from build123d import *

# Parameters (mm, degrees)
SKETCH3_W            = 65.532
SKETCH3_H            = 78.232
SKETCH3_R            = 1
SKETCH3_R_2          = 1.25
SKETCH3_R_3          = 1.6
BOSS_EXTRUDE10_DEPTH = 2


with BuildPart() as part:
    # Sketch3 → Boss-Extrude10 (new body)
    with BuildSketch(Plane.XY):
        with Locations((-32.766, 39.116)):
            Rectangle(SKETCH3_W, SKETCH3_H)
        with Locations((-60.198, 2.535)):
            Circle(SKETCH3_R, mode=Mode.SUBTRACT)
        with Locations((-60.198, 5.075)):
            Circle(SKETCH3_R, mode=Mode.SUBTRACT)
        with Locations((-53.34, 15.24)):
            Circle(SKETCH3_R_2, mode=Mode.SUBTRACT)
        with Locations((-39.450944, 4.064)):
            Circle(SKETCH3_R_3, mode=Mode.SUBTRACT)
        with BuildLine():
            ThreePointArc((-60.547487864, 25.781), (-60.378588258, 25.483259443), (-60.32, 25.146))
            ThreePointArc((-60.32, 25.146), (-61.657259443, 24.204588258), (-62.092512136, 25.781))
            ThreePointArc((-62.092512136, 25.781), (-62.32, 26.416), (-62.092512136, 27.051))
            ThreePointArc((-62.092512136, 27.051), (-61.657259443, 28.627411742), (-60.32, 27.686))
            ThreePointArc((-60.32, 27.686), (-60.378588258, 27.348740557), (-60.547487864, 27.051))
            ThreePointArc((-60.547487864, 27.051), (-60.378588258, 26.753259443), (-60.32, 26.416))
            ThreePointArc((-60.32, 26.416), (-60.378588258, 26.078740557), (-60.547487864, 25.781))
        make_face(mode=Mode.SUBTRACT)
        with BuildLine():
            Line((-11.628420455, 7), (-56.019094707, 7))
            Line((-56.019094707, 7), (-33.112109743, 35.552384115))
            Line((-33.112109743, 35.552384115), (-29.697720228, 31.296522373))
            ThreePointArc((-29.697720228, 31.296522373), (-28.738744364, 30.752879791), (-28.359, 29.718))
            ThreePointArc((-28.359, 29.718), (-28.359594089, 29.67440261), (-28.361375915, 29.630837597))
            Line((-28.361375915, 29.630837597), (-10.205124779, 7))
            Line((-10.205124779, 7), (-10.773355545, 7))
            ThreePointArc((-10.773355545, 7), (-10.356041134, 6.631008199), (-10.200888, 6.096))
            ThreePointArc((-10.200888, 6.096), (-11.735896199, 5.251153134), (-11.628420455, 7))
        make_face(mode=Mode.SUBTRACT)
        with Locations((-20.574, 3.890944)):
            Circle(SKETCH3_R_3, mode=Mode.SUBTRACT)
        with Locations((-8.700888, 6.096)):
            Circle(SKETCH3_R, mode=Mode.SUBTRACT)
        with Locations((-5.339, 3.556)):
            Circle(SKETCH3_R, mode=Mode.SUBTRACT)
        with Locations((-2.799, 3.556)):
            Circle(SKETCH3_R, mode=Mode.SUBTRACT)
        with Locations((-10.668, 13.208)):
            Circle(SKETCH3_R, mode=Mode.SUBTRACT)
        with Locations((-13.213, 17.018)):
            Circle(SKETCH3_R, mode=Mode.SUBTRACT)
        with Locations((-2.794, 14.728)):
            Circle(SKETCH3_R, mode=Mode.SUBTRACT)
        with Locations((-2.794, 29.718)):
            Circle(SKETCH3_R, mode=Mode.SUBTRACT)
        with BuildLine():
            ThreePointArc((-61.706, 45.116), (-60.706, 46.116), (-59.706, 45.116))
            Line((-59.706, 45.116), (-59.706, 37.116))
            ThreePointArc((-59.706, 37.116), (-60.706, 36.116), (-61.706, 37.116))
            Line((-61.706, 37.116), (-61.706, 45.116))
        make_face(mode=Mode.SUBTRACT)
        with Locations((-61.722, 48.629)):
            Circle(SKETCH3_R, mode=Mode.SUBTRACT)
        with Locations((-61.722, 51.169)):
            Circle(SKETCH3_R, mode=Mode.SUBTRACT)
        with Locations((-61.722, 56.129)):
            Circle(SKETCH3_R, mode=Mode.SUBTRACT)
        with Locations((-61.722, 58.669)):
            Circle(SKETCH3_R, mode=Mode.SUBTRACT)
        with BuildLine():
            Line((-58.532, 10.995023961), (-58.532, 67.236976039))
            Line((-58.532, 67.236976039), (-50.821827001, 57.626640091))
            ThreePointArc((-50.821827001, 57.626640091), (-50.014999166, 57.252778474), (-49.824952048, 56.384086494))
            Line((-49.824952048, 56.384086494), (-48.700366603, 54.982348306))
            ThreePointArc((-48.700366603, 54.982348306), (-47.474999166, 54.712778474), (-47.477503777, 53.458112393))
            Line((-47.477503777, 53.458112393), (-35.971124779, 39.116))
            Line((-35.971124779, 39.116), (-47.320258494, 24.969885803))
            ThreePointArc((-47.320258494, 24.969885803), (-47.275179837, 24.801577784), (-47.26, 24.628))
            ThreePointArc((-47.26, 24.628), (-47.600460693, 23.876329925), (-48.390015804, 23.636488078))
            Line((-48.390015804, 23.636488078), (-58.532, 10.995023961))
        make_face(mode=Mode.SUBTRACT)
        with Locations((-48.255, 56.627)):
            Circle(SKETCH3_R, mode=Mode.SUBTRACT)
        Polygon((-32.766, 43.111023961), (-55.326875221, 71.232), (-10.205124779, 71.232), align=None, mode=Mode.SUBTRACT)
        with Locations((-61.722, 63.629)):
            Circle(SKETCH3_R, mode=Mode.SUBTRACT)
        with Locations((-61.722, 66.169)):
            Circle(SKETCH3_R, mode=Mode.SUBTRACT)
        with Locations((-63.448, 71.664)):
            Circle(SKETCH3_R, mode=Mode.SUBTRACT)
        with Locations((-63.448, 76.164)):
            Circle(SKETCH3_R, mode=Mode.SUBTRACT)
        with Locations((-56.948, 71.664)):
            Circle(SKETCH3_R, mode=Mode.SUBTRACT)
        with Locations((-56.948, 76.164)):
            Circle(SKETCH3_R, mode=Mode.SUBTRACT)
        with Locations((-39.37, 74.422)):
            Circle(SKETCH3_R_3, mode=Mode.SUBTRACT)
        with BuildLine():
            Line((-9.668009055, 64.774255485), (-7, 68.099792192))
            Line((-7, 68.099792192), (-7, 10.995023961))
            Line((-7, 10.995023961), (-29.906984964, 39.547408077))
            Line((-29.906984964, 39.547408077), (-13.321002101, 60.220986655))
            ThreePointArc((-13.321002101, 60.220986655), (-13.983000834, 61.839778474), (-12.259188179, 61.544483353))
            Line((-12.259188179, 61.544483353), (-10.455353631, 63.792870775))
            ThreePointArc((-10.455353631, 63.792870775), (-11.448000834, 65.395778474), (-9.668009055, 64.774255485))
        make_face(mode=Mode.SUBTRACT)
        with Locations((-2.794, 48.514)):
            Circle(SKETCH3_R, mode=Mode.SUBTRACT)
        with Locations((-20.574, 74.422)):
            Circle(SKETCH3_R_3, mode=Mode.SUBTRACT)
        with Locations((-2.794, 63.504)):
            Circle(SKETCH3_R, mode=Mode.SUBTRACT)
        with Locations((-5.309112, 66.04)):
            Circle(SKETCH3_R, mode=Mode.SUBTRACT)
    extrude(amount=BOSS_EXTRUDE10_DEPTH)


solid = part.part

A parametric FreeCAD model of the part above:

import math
import FreeCAD as App
import Part
import Sketcher

V = App.Vector

doc = App.newDocument("Part")
body = doc.addObject("PartDesign::Body", "Body")

# Sketch on XY plane
sketch1 = doc.addObject("Sketcher::SketchObject", "Sketch")
body.addObject(sketch1)
sketch1.AttachmentSupport = (doc.XY_Plane, [""])
sketch1.MapMode = "FlatFace"
sketch1.addGeometry([
    Part.LineSegment(V(-65.53, 78.23, 0), V(-65.53, 0, 0)),  # 0
    Part.LineSegment(V(-65.53, 0, 0), V(0, 0, 0)),  # 1
    Part.LineSegment(V(0, 0, 0), V(0, 78.23, 0)),  # 2
    Part.LineSegment(V(0, 78.23, 0), V(-65.53, 78.23, 0)),  # 3
    Part.Circle(V(-60.2, 2.54, 0), V(0, 0, 1), 1),  # 4
    Part.Circle(V(-60.2, 5.08, 0), V(0, 0, 1), 1),  # 5
    Part.Circle(V(-53.34, 15.24, 0), V(0, 0, 1), 1.25),  # 6
    Part.Circle(V(-39.45, 4.06, 0), V(0, 0, 1), 1.6),  # 7
    Part.ArcOfCircle(Part.Circle(V(-61.32, 26.42, 0), V(0, 0, 1), 1), math.radians(-39), math.radians(0)),  # 8
    Part.ArcOfCircle(Part.Circle(V(-61.32, 25.15, 0), V(0, 0, 1), 1), math.radians(0), math.radians(39)),  # 9
    Part.ArcOfCircle(Part.Circle(V(-61.32, 25.15, 0), V(0, 0, 1), 1), math.radians(141), math.radians(360)),  # 10
    Part.ArcOfCircle(Part.Circle(V(-61.32, 26.42, 0), V(0, 0, 1), 1), math.radians(141), math.radians(219)),  # 11
    Part.ArcOfCircle(Part.Circle(V(-61.32, 27.69, 0), V(0, 0, 1), 1), math.radians(0), math.radians(219)),  # 12
    Part.ArcOfCircle(Part.Circle(V(-61.32, 27.69, 0), V(0, 0, 1), 1), math.radians(-39), math.radians(0)),  # 13
    Part.ArcOfCircle(Part.Circle(V(-61.32, 26.42, 0), V(0, 0, 1), 1), math.radians(0), math.radians(39)),  # 14
    Part.LineSegment(V(-48.39, 23.64, 0), V(-58.53, 11, 0)),  # 15
    Part.LineSegment(V(-58.53, 11, 0), V(-58.53, 67.24, 0)),  # 16
    Part.LineSegment(V(-58.53, 67.24, 0), V(-50.82, 57.63, 0)),  # 17
    Part.ArcOfCircle(Part.Circle(V(-50.8, 56.63, 0), V(0, 0, 1), 1), math.radians(-14), math.radians(92)),  # 18
    Part.LineSegment(V(-49.82, 56.38, 0), V(-48.7, 54.98, 0)),  # 19
    Part.ArcOfCircle(Part.Circle(V(-48.26, 54.09, 0), V(0, 0, 1), 1), math.radians(-39), math.radians(116)),  # 20
    Part.LineSegment(V(-47.48, 53.46, 0), V(-35.97, 39.12, 0)),  # 21
    Part.LineSegment(V(-35.97, 39.12, 0), V(-47.32, 24.97, 0)),  # 22
    Part.ArcOfCircle(Part.Circle(V(-48.26, 24.63, 0), V(0, 0, 1), 1), math.radians(0), math.radians(19.99)),  # 23
    Part.ArcOfCircle(Part.Circle(V(-48.26, 24.63, 0), V(0, 0, 1), 1), math.radians(-97), math.radians(0)),  # 24
    Part.Circle(V(-20.57, 3.89, 0), V(0, 0, 1), 1.6),  # 25
    Part.ArcOfCircle(Part.Circle(V(-11.2, 6.1, 0), V(0, 0, 1), 1), math.radians(115), math.radians(360)),  # 26
    Part.LineSegment(V(-11.63, 7, 0), V(-56.02, 7, 0)),  # 27
    Part.LineSegment(V(-56.02, 7, 0), V(-33.11, 35.55, 0)),  # 28
    Part.LineSegment(V(-33.11, 35.55, 0), V(-29.7, 31.3, 0)),  # 29
    Part.ArcOfCircle(Part.Circle(V(-29.96, 29.72, 0), V(0, 0, 1), 1.6), math.radians(0), math.radians(81)),  # 30
    Part.ArcOfCircle(Part.Circle(V(-29.96, 29.72, 0), V(0, 0, 1), 1.6), math.radians(-3.12), math.radians(0)),  # 31
    Part.LineSegment(V(-28.36, 29.63, 0), V(-10.21, 7, 0)),  # 32
    Part.LineSegment(V(-10.21, 7, 0), V(-10.77, 7, 0)),  # 33
    Part.ArcOfCircle(Part.Circle(V(-11.2, 6.1, 0), V(0, 0, 1), 1), math.radians(0), math.radians(65)),  # 34
    Part.Circle(V(-8.7, 6.1, 0), V(0, 0, 1), 1),  # 35
    Part.Circle(V(-5.34, 3.56, 0), V(0, 0, 1), 1),  # 36
    Part.Circle(V(-2.8, 3.56, 0), V(0, 0, 1), 1),  # 37
    Part.Circle(V(-10.67, 13.21, 0), V(0, 0, 1), 1),  # 38
    Part.Circle(V(-13.21, 17.02, 0), V(0, 0, 1), 1),  # 39
    Part.Circle(V(-2.79, 14.73, 0), V(0, 0, 1), 1),  # 40
    Part.Circle(V(-2.79, 29.72, 0), V(0, 0, 1), 1),  # 41
    Part.LineSegment(V(-61.71, 37.12, 0), V(-61.71, 45.12, 0)),  # 42
    Part.ArcOfCircle(Part.Circle(V(-60.71, 45.12, 0), V(0, 0, 1), 1), math.radians(0), math.radians(180)),  # 43
    Part.LineSegment(V(-59.71, 45.12, 0), V(-59.71, 37.12, 0)),  # 44
    Part.ArcOfCircle(Part.Circle(V(-60.71, 37.12, 0), V(0, 0, 1), 1), math.radians(180), math.radians(360)),  # 45
    Part.Circle(V(-61.72, 48.63, 0), V(0, 0, 1), 1),  # 46
    Part.Circle(V(-61.72, 51.17, 0), V(0, 0, 1), 1),  # 47
    Part.Circle(V(-61.72, 56.13, 0), V(0, 0, 1), 1),  # 48
    Part.Circle(V(-48.26, 56.63, 0), V(0, 0, 1), 1),  # 49
    Part.Circle(V(-61.72, 58.67, 0), V(0, 0, 1), 1),  # 50
    Part.Circle(V(-61.72, 63.63, 0), V(0, 0, 1), 1),  # 51
    Part.Circle(V(-61.72, 66.17, 0), V(0, 0, 1), 1),  # 52
    Part.Circle(V(-63.45, 71.66, 0), V(0, 0, 1), 1),  # 53
    Part.Circle(V(-56.95, 71.66, 0), V(0, 0, 1), 1),  # 54
    Part.Circle(V(-63.45, 76.16, 0), V(0, 0, 1), 1),  # 55
    Part.Circle(V(-56.95, 76.16, 0), V(0, 0, 1), 1),  # 56
    Part.Circle(V(-39.37, 74.42, 0), V(0, 0, 1), 1.6),  # 57
    Part.ArcOfCircle(Part.Circle(V(-10.67, 64.77, 0), V(0, 0, 1), 1), math.radians(0), math.radians(282)),  # 58
    Part.LineSegment(V(-9.67, 64.77, 0), V(-7, 68.1, 0)),  # 59
    Part.LineSegment(V(-7, 68.1, 0), V(-7, 11, 0)),  # 60
    Part.LineSegment(V(-7, 11, 0), V(-29.91, 39.55, 0)),  # 61
    Part.LineSegment(V(-29.91, 39.55, 0), V(-13.32, 60.22, 0)),  # 62
    Part.ArcOfCircle(Part.Circle(V(-13.2, 61.21, 0), V(0, 0, 1), 1), math.radians(19), math.radians(263)),  # 63
    Part.LineSegment(V(-12.26, 61.54, 0), V(-10.46, 63.79, 0)),  # 64
    Part.LineSegment(V(-10.21, 71.23, 0), V(-32.77, 43.11, 0)),  # 65
    Part.LineSegment(V(-32.77, 43.11, 0), V(-55.33, 71.23, 0)),  # 66
    Part.LineSegment(V(-55.33, 71.23, 0), V(-10.21, 71.23, 0)),  # 67
    Part.Circle(V(-2.79, 48.51, 0), V(0, 0, 1), 1),  # 68
    Part.Circle(V(-20.57, 74.42, 0), V(0, 0, 1), 1.6),  # 69
    Part.Circle(V(-2.79, 63.5, 0), V(0, 0, 1), 1),  # 70
    Part.Circle(V(-5.31, 66.04, 0), V(0, 0, 1), 1),  # 71
], False)
sketch1.addConstraint([
    Sketcher.Constraint("Coincident", 0, 2, 1, 1),
    Sketcher.Constraint("Coincident", 1, 2, 2, 1),
    Sketcher.Constraint("Coincident", 2, 2, 3, 1),
    Sketcher.Constraint("Coincident", 3, 2, 0, 1),
    Sketcher.Constraint("Coincident", 8, 1, 9, 2),
    Sketcher.Constraint("Tangent", 9, 1, 10, 2),
    Sketcher.Constraint("Coincident", 10, 1, 11, 2),
    Sketcher.Constraint("Coincident", 11, 1, 12, 2),
    Sketcher.Constraint("Tangent", 12, 1, 13, 2),
    Sketcher.Constraint("Coincident", 13, 1, 14, 2),
    Sketcher.Constraint("Tangent", 14, 1, 8, 2),
    Sketcher.Constraint("Coincident", 15, 2, 16, 1),
    Sketcher.Constraint("Coincident", 16, 2, 17, 1),
    Sketcher.Constraint("Coincident", 17, 2, 18, 2),
    Sketcher.Constraint("Coincident", 18, 1, 19, 1),
    Sketcher.Constraint("Coincident", 19, 2, 20, 2),
    Sketcher.Constraint("Coincident", 20, 1, 21, 1),
    Sketcher.Constraint("Coincident", 21, 2, 22, 1),
    Sketcher.Constraint("Coincident", 22, 2, 23, 2),
    Sketcher.Constraint("Tangent", 23, 1, 24, 2),
    Sketcher.Constraint("Coincident", 24, 1, 15, 1),
    Sketcher.Constraint("Coincident", 26, 1, 27, 1),
    Sketcher.Constraint("Coincident", 27, 2, 28, 1),
    Sketcher.Constraint("Coincident", 28, 2, 29, 1),
    Sketcher.Constraint("Coincident", 29, 2, 30, 2),
    Sketcher.Constraint("Tangent", 30, 1, 31, 2),
    Sketcher.Constraint("Coincident", 31, 1, 32, 1),
    Sketcher.Constraint("Coincident", 32, 2, 33, 1),
    Sketcher.Constraint("Coincident", 33, 2, 34, 2),
    Sketcher.Constraint("Tangent", 34, 1, 26, 2),
    Sketcher.Constraint("Tangent", 42, 2, 43, 2),
    Sketcher.Constraint("Tangent", 43, 1, 44, 1),
    Sketcher.Constraint("Tangent", 44, 2, 45, 2),
    Sketcher.Constraint("Tangent", 45, 1, 42, 1),
    Sketcher.Constraint("Coincident", 58, 1, 59, 1),
    Sketcher.Constraint("Coincident", 59, 2, 60, 1),
    Sketcher.Constraint("Coincident", 60, 2, 61, 1),
    Sketcher.Constraint("Coincident", 61, 2, 62, 1),
    Sketcher.Constraint("Coincident", 62, 2, 63, 2),
    Sketcher.Constraint("Coincident", 63, 1, 64, 1),
    Sketcher.Constraint("Coincident", 64, 2, 58, 2),
    Sketcher.Constraint("Coincident", 65, 2, 66, 1),
    Sketcher.Constraint("Coincident", 66, 2, 67, 1),
    Sketcher.Constraint("Coincident", 67, 2, 65, 1),
    Sketcher.Constraint("Vertical", 0),
    Sketcher.Constraint("Horizontal", 1),
    Sketcher.Constraint("Vertical", 2),
    Sketcher.Constraint("Horizontal", 3),
    Sketcher.Constraint("Vertical", 16),
    Sketcher.Constraint("Horizontal", 27),
    Sketcher.Constraint("Horizontal", 33),
    Sketcher.Constraint("Vertical", 42),
    Sketcher.Constraint("Vertical", 44),
    Sketcher.Constraint("Vertical", 60),
    Sketcher.Constraint("Horizontal", 67),
    Sketcher.Constraint("Coincident", 1, 2, -1, 1),
    Sketcher.Constraint("Coincident", 11, 3, 8, 3),
    Sketcher.Constraint("Equal", 4, 5),
    Sketcher.Constraint("Equal", 5, 8),
    Sketcher.Constraint("Equal", 8, 9),
    Sketcher.Constraint("Equal", 9, 10),
    Sketcher.Constraint("Equal", 10, 11),
    Sketcher.Constraint("Equal", 11, 12),
    Sketcher.Constraint("Equal", 12, 13),
    Sketcher.Constraint("Equal", 13, 14),
    Sketcher.Constraint("Equal", 14, 18),
    Sketcher.Constraint("Equal", 18, 20),
    Sketcher.Constraint("Equal", 20, 23),
    Sketcher.Constraint("Equal", 23, 24),
    Sketcher.Constraint("Equal", 7, 25),
    Sketcher.Constraint("Equal", 24, 26),
    Sketcher.Constraint("Equal", 25, 30),
    Sketcher.Constraint("Equal", 30, 31),
    Sketcher.Constraint("Equal", 26, 34),
    Sketcher.Constraint("Equal", 34, 35),
    Sketcher.Constraint("Equal", 35, 36),
    Sketcher.Constraint("Equal", 36, 37),
    Sketcher.Constraint("Equal", 37, 38),
    Sketcher.Constraint("Equal", 38, 39),
    Sketcher.Constraint("Equal", 39, 40),
    Sketcher.Constraint("Equal", 40, 41),
    Sketcher.Constraint("Equal", 41, 43),
    Sketcher.Constraint("Equal", 45, 46),
    Sketcher.Constraint("Equal", 46, 47),
    Sketcher.Constraint("Equal", 47, 48),
    Sketcher.Constraint("Equal", 48, 49),
    Sketcher.Constraint("Equal", 49, 50),
    Sketcher.Constraint("Equal", 50, 51),
    Sketcher.Constraint("Equal", 51, 52),
    Sketcher.Constraint("Equal", 52, 53),
    Sketcher.Constraint("Equal", 53, 54),
    Sketcher.Constraint("Equal", 54, 55),
    Sketcher.Constraint("Equal", 55, 56),
    Sketcher.Constraint("Equal", 31, 57),
    Sketcher.Constraint("Equal", 56, 58),
    Sketcher.Constraint("Equal", 58, 63),
    Sketcher.Constraint("Equal", 63, 68),
    Sketcher.Constraint("Equal", 57, 69),
    Sketcher.Constraint("Equal", 68, 70),
    Sketcher.Constraint("Equal", 70, 71),
    Sketcher.Constraint("Parallel", 17, 19),
    Sketcher.Constraint("Parallel", 19, 21),
    Sketcher.Constraint("Parallel", 15, 22),
    Sketcher.Constraint("Parallel", 22, 28),
    Sketcher.Constraint("Parallel", 21, 29),
    Sketcher.Constraint("Parallel", 29, 32),
    Sketcher.Constraint("Parallel", 28, 59),
    Sketcher.Constraint("Parallel", 32, 61),
    Sketcher.Constraint("Parallel", 59, 62),
    Sketcher.Constraint("Parallel", 62, 64),
    Sketcher.Constraint("Parallel", 64, 65),
    Sketcher.Constraint("Parallel", 61, 66),
    Sketcher.Constraint("Horizontal", 34, 3, 35, 3),
    Sketcher.Constraint("Horizontal", 36, 3, 37, 3),
    Sketcher.Constraint("Horizontal", 31, 3, 41, 3),
    Sketcher.Constraint("Horizontal", 18, 3, 49, 3),
    Sketcher.Constraint("Horizontal", 53, 3, 54, 3),
    Sketcher.Constraint("Horizontal", 55, 3, 56, 3),
    Sketcher.Constraint("Horizontal", 57, 3, 69, 3),
    Sketcher.Constraint("Horizontal", 10, 3, 9, 1),
    Sketcher.Constraint("Horizontal", 8, 1, 10, 1),
    Sketcher.Constraint("Horizontal", 13, 3, 12, 1),
    Sketcher.Constraint("Horizontal", 11, 1, 13, 1),
    Sketcher.Constraint("Horizontal", 11, 3, 14, 1),
    Sketcher.Constraint("Horizontal", 24, 3, 23, 1),
    Sketcher.Constraint("Horizontal", 41, 3, 30, 1),
    Sketcher.Constraint("Horizontal", 27, 2, 32, 2),
    Sketcher.Constraint("Horizontal", 35, 3, 34, 1),
    Sketcher.Constraint("Horizontal", 15, 2, 60, 2),
    Sketcher.Constraint("Vertical", 4, 3, 5, 3),
    Sketcher.Constraint("Vertical", 40, 3, 41, 3),
    Sketcher.Constraint("Vertical", 46, 3, 47, 3),
    Sketcher.Constraint("Vertical", 47, 3, 48, 3),
    Sketcher.Constraint("Vertical", 20, 3, 49, 3),
    Sketcher.Constraint("Vertical", 48, 3, 50, 3),
    Sketcher.Constraint("Vertical", 50, 3, 51, 3),
    Sketcher.Constraint("Vertical", 51, 3, 52, 3),
    Sketcher.Constraint("Vertical", 53, 3, 55, 3),
    Sketcher.Constraint("Vertical", 54, 3, 56, 3),
    Sketcher.Constraint("Vertical", 38, 3, 58, 3),
    Sketcher.Constraint("Vertical", 41, 3, 68, 3),
    Sketcher.Constraint("Vertical", 25, 3, 69, 3),
    Sketcher.Constraint("Vertical", 68, 3, 70, 3),
    Sketcher.Constraint("Vertical", 10, 1, 11, 1),
    Sketcher.Constraint("Vertical", 32, 2, 67, 2),
    Sketcher.Constraint("Equal", 28, 61),
    Sketcher.Constraint("Equal", 65, 66),
    Sketcher.Constraint("Diameter", 4, 2.0),
    Sketcher.Constraint("Diameter", 6, 2.5),
    Sketcher.Constraint("Diameter", 7, 3.2),
    Sketcher.Constraint("DistanceY", 42, 1, 42, 2, 8.0),
    Sketcher.Constraint("DistanceY", -1, 1, 26, 1, 7.0),
    Sketcher.Constraint("DistanceX", 59, 2, -1, 1, 7.0),
    Sketcher.Constraint("DistanceX", 1, 1, 1, 2, 65.532),
    Sketcher.Constraint("DistanceY", 0, 2, 0, 1, 78.232),
    Sketcher.Constraint("DistanceX", 6, 3, -1, 1, 53.34),
    Sketcher.Constraint("DistanceY", -1, 1, 6, 3, 15.24),
    Sketcher.Constraint("DistanceX", 8, 3, -1, 1, 61.32),
    Sketcher.Constraint("DistanceX", 23, 3, -1, 1, 48.26),
    Sketcher.Constraint("DistanceX", 57, 3, -1, 1, 39.37),
    Sketcher.Constraint("DistanceY", -1, 1, 58, 3, 64.77),
    Sketcher.Constraint("DistanceY", -1, 1, 71, 3, 66.04),
    Sketcher.Constraint("DistanceX", 4, 3, -1, 1, 60.198),
    Sketcher.Constraint("DistanceY", -1, 1, 4, 3, 2.535),
    Sketcher.Constraint("DistanceY", -1, 1, 5, 3, 5.075),
    Sketcher.Constraint("DistanceY", -1, 1, 7, 3, 4.064),
    Sketcher.Constraint("DistanceY", -1, 1, 8, 3, 26.416),
    Sketcher.Constraint("DistanceY", -1, 1, 9, 3, 25.146),
    Sketcher.Constraint("DistanceX", 18, 3, -1, 1, 50.795),
    Sketcher.Constraint("DistanceY", -1, 1, 18, 3, 56.627),
    Sketcher.Constraint("DistanceX", 20, 3, -1, 1, 48.255),
    Sketcher.Constraint("DistanceY", -1, 1, 20, 3, 54.087),
    Sketcher.Constraint("DistanceY", -1, 1, 23, 3, 24.628),
    Sketcher.Constraint("DistanceX", 25, 3, -1, 1, 20.574),
    Sketcher.Constraint("DistanceY", -1, 1, 26, 3, 6.096),
    Sketcher.Constraint("DistanceX", 30, 3, -1, 1, 29.959),
    Sketcher.Constraint("DistanceY", -1, 1, 30, 3, 29.718),
    Sketcher.Constraint("DistanceX", 36, 3, -1, 1, 5.339),
    Sketcher.Constraint("DistanceY", -1, 1, 36, 3, 3.556),
    Sketcher.Constraint("DistanceX", 37, 3, -1, 1, 2.799),
    Sketcher.Constraint("DistanceX", 38, 3, -1, 1, 10.668),
    Sketcher.Constraint("DistanceY", -1, 1, 38, 3, 13.208),
    Sketcher.Constraint("DistanceX", 39, 3, -1, 1, 13.213),
    Sketcher.Constraint("DistanceY", -1, 1, 39, 3, 17.018),
    Sketcher.Constraint("DistanceX", 40, 3, -1, 1, 2.794),
    Sketcher.Constraint("DistanceY", -1, 1, 40, 3, 14.728),
    Sketcher.Constraint("DistanceX", 43, 3, -1, 1, 60.706),
    Sketcher.Constraint("DistanceY", -1, 1, 43, 3, 45.116),
    Sketcher.Constraint("DistanceX", 46, 3, -1, 1, 61.722),
    Sketcher.Constraint("DistanceY", -1, 1, 46, 3, 48.629),
    Sketcher.Constraint("DistanceY", -1, 1, 47, 3, 51.169),
    Sketcher.Constraint("DistanceY", -1, 1, 48, 3, 56.129),
    Sketcher.Constraint("DistanceY", -1, 1, 50, 3, 58.669),
    Sketcher.Constraint("DistanceY", -1, 1, 51, 3, 63.629),
    Sketcher.Constraint("DistanceY", -1, 1, 52, 3, 66.169),
    Sketcher.Constraint("DistanceX", 53, 3, -1, 1, 63.448),
    Sketcher.Constraint("DistanceY", -1, 1, 53, 3, 71.664),
    Sketcher.Constraint("DistanceX", 54, 3, -1, 1, 56.948),
    Sketcher.Constraint("DistanceY", -1, 1, 55, 3, 76.164),
    Sketcher.Constraint("DistanceY", -1, 1, 57, 3, 74.422),
    Sketcher.Constraint("DistanceX", 63, 3, -1, 1, 13.203),
    Sketcher.Constraint("DistanceY", -1, 1, 63, 3, 61.214),
    Sketcher.Constraint("DistanceY", -1, 1, 68, 3, 48.514),
    Sketcher.Constraint("DistanceY", -1, 1, 70, 3, 63.504),
    Sketcher.Constraint("DistanceX", 15, 2, -1, 1, 58.532),
    Sketcher.Constraint("DistanceY", -1, 1, 21, 2, 39.116),
    Sketcher.Constraint("DistanceX", 65, 2, -1, 1, 32.766),
    Sketcher.Constraint("DistanceY", -1, 1, 66, 2, 71.232),
    Sketcher.Constraint("Distance", 19, 1.797098),
    Sketcher.Constraint("DistanceX", 33, 2, 33, 1, 0.568231),
    Sketcher.Constraint("DistanceX", 67, 1, 67, 2, 45.12175),
    Sketcher.Constraint("DistanceY", 60, 2, 60, 1, 57.104768),
    Sketcher.Constraint("Distance", 17, 12.32093),
    Sketcher.Constraint("Distance", 28, 36.605582),
    Sketcher.Constraint("Distance", 62, 26.50456),
    Sketcher.Constraint("DistanceX", 27, 2, 27, 1, 44.390674),
    Sketcher.Constraint("DistanceY", 16, 1, 16, 2, 56.241952),
    Sketcher.Constraint("DistanceX", 35, 3, -1, 1, 8.700888),
    Sketcher.Constraint("DistanceX", 71, 3, -1, 1, 5.309112),
    Sketcher.Constraint("DistanceX", 22, 2, -1, 1, 47.320258),
    Sketcher.Constraint("DistanceX", 63, 1, -1, 1, 12.259188),
    Sketcher.Constraint("DistanceX", 7, 3, -1, 1, 39.450944),
    Sketcher.Constraint("DistanceY", -1, 1, 25, 3, 3.890944),
])
pad1 = doc.addObject("PartDesign::Pad", "Pad")
body.addObject(pad1)
pad1.Profile = sketch1
pad1.Length = 2

doc.recompute()
